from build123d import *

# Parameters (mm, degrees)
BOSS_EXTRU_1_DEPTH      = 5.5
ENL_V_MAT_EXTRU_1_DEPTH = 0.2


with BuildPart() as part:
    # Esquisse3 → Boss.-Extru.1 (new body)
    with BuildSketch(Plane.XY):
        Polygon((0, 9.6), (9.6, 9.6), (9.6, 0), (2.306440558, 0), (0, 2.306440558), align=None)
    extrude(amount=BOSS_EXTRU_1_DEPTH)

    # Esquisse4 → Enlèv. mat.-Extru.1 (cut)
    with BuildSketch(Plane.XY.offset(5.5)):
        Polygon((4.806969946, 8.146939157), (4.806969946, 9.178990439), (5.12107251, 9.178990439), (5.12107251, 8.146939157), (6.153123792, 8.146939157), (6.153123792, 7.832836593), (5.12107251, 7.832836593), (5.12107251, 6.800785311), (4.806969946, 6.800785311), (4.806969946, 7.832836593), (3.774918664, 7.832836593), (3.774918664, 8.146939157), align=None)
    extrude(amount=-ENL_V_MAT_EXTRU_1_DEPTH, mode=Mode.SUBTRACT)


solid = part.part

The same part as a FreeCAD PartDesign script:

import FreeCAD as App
import Part
import Sketcher
from FreeCAD import Vector
Q = App.Units.Quantity


def add_polygon(sketch, points):
    """Adds a closed chain of lines whose ends are joined by coincident constraints."""
    first, n = sketch.GeometryCount, len(points)
    for a, b in zip(points, points[1:] + points[:1]):
        sketch.addGeometry(Part.LineSegment(App.Vector(*a, 0), App.Vector(*b, 0)), False)
    for i in range(n):
        sketch.addConstraint(Sketcher.Constraint("Coincident", first + i, 2, first + (i + 1) % n, 1))

doc = App.newDocument("Part")
body = doc.addObject("PartDesign::Body", "Body")

# Sketch on XY plane
sketch1 = body.newObject("Sketcher::SketchObject", "Sketch")
sketch1.AttachmentSupport = (doc.getObject("XY_Plane"), [""])
sketch1.MapMode = "FlatFace"
add_polygon(sketch1, [(9.6, 9.6), (0, 9.6), (0, 2.306441), (2.306441, 0), (9.6, 0)])  # lines 0-4
sketch1.addConstraint(Sketcher.Constraint("Horizontal", 0))
sketch1.addConstraint(Sketcher.Constraint("Vertical", 1))
sketch1.addConstraint(Sketcher.Constraint("Horizontal", 3))
sketch1.addConstraint(Sketcher.Constraint("Vertical", 4))
sketch1.addConstraint(Sketcher.Constraint("PointOnObject", 0, 2, -2))
sketch1.addConstraint(Sketcher.Constraint("PointOnObject", 2, 2, -1))
sketch1.addConstraint(Sketcher.Constraint("Equal", 3, 1))
sketch1.addConstraint(Sketcher.Constraint("Equal", 0, 4))
sketch1.addConstraint(Sketcher.Constraint("DistanceX", 0, 2, 0, 1, Q("9.6 mm")))
sketch1.addConstraint(Sketcher.Constraint("Distance", 2, Q("3.2618 mm")))
pad1 = body.newObject("PartDesign::Pad", "Pad")
pad1.Profile = sketch1
pad1.Length = 5.5

# Sketch on XY plane
sketch2 = body.newObject("Sketcher::SketchObject", "Sketch001")
sketch2.AttachmentSupport = (doc.getObject("XY_Plane"), [""])
sketch2.MapMode = "FlatFace"
sketch2.AttachmentOffset = App.Placement(Vector(0, 0, 5.5), App.Rotation())
add_polygon(sketch2, [(4.80697, 9.17899), (4.80697, 8.146939), (3.774919, 8.146939), (3.774919, 7.832837), (4.80697, 7.832837), (4.80697, 6.800785), (5.121073, 6.800785), (5.121073, 7.832837), (6.153124, 7.832837), (6.153124, 8.146939), (5.121073, 8.146939), (5.121073, 9.17899)])  # lines 0-11
sketch2.addConstraint(Sketcher.Constraint("Vertical", 0))
sketch2.addConstraint(Sketcher.Constraint("Horizontal", 1))
sketch2.addConstraint(Sketcher.Constraint("Vertical", 2))
sketch2.addConstraint(Sketcher.Constraint("Horizontal", 3))
sketch2.addConstraint(Sketcher.Constraint("Vertical", 4))
sketch2.addConstraint(Sketcher.Constraint("Horizontal", 5))
sketch2.addConstraint(Sketcher.Constraint("Vertical", 6))
sketch2.addConstraint(Sketcher.Constraint("Horizontal", 7))
sketch2.addConstraint(Sketcher.Constraint("Vertical", 8))
sketch2.addConstraint(Sketcher.Constraint("Horizontal", 9))
sketch2.addConstraint(Sketcher.Constraint("Vertical", 10))
sketch2.addConstraint(Sketcher.Constraint("Horizontal", 11))
sketch2.addConstraint(Sketcher.Constraint("Horizontal", 3, 2, 6, 2))
sketch2.addConstraint(Sketcher.Constraint("Horizontal", 1, 2, 8, 2))
sketch2.addConstraint(Sketcher.Constraint("Vertical", 0, 2, 3, 2))
sketch2.addConstraint(Sketcher.Constraint("Vertical", 6, 2, 9, 2))
sketch2.addConstraint(Sketcher.Constraint("Equal", 3, 7))
sketch2.addConstraint(Sketcher.Constraint("Equal", 9, 0))
sketch2.addConstraint(Sketcher.Constraint("Equal", 11, 2))
sketch2.addConstraint(Sketcher.Constraint("Equal", 0, 4))
sketch2.addConstraint(Sketcher.Constraint("DistanceX", 1, 2, 1, 1, Q("1.032051 mm")))
sketch2.addConstraint(Sketcher.Constraint("DistanceX", 5, 1, 5, 2, Q("0.314103 mm")))
sketch2.addConstraint(Sketcher.Constraint("DistanceX", -1, 1, 0, 2, Q("4.80697 mm")))
sketch2.addConstraint(Sketcher.Constraint("DistanceY", -1, 1, 0, 2, Q("8.146939 mm")))
pocket1 = body.newObject("PartDesign::Pocket", "Pocket")
pocket1.Profile = sketch2
pocket1.Length = 0.2

doc.recompute()
